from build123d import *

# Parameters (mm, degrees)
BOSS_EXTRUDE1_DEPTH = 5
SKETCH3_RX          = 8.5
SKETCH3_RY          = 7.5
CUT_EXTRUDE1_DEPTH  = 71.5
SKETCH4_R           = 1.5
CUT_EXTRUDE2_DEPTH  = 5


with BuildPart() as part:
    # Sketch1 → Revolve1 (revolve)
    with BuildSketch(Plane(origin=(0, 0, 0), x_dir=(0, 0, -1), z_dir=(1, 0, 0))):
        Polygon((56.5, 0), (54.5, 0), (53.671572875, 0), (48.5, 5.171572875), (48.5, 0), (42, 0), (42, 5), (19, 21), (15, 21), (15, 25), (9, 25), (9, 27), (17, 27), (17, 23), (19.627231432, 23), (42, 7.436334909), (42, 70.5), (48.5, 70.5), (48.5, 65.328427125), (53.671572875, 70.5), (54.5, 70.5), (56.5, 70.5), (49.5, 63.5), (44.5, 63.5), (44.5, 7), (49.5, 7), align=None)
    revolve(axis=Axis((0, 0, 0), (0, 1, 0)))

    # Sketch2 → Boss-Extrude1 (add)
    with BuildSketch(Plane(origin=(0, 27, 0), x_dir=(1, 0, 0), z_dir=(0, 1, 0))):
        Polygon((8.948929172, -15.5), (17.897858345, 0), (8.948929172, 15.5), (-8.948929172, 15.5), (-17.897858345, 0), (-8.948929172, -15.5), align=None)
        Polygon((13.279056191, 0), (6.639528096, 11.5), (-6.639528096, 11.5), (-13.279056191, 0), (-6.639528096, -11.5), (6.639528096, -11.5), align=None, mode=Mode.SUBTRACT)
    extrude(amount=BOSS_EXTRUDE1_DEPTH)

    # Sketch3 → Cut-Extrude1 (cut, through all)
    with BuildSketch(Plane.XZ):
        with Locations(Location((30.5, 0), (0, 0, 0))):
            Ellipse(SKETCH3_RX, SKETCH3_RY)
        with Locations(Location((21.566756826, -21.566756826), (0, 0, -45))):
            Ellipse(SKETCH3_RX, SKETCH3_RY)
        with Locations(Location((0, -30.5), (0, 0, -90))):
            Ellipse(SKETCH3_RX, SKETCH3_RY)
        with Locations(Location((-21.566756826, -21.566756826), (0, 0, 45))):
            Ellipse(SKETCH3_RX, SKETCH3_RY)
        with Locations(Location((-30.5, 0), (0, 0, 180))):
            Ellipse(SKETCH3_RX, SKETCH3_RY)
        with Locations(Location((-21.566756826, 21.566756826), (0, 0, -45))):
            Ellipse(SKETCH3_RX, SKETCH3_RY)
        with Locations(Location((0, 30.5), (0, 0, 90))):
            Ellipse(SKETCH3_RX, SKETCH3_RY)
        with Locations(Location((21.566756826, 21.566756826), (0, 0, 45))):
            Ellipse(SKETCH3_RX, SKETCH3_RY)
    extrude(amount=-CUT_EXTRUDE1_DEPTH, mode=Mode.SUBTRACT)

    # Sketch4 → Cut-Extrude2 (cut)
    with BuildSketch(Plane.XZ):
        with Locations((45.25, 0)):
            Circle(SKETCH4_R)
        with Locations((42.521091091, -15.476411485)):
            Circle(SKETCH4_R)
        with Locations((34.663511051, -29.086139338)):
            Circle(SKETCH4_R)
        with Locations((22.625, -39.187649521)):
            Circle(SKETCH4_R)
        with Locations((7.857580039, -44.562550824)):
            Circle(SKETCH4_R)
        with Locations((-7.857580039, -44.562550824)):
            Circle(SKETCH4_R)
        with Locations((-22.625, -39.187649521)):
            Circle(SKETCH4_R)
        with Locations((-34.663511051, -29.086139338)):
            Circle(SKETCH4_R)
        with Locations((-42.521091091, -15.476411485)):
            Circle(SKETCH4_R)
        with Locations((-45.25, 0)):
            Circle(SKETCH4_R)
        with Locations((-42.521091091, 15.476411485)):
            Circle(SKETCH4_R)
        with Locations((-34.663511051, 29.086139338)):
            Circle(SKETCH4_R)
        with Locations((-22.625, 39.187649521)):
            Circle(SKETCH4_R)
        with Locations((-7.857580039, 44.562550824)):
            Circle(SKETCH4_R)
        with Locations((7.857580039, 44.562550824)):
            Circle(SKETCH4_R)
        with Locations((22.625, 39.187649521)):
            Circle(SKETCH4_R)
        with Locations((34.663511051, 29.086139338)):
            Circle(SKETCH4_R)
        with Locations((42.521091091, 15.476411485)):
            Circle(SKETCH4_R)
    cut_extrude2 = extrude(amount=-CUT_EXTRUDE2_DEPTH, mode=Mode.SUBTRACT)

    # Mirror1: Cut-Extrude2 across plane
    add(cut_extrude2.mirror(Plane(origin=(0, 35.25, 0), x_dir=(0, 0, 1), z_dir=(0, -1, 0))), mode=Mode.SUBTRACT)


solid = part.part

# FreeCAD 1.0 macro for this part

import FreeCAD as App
import Part
import Sketcher

V = App.Vector
Q = App.Units.Quantity


def add_polygon(sketch, points):
    """Adds a closed chain of lines whose ends are joined by coincident constraints."""
    first, n = sketch.GeometryCount, len(points)
    for a, b in zip(points, points[1:] + points[:1]):
        sketch.addGeometry(Part.LineSegment(App.Vector(*a, 0), App.Vector(*b, 0)), False)
    for i in range(n):
        sketch.addConstraint(Sketcher.Constraint("Coincident", first + i, 2, first + (i + 1) % n, 1))

doc = App.newDocument("Part")
body = doc.addObject("PartDesign::Body", "Body")

# Sketch on YZ plane
sketch1 = doc.addObject("Sketcher::SketchObject", "Sketch")
body.addObject(sketch1)
sketch1.AttachmentSupport = (doc.YZ_Plane, [""])
sketch1.MapMode = "FlatFace"
add_polygon(sketch1, [(0, -53.671573), (0, -56.5), (7, -49.5), (7, -44.5), (63.5, -44.5), (63.5, -49.5), (70.5, -56.5), (70.5, -53.671573), (65.328427, -48.5), (70.5, -48.5), (70.5, -42), (7.436335, -42), (23, -19.627231), (23, -17), (27, -17), (27, -9), (25, -9), (25, -15), (21, -15), (21, -19), (5, -42), (0, -42), (0, -48.5), (5.171573, -48.5)])  # lines 0-23
sketch1.addConstraint([
    Sketcher.Constraint("Vertical", 0),
    Sketcher.Constraint("Vertical", 2),
    Sketcher.Constraint("Horizontal", 3),
    Sketcher.Constraint("Vertical", 4),
    Sketcher.Constraint("Vertical", 6),
    Sketcher.Constraint("Horizontal", 8),
    Sketcher.Constraint("Vertical", 9),
    Sketcher.Constraint("Horizontal", 10),
    Sketcher.Constraint("Vertical", 12),
    Sketcher.Constraint("Horizontal", 13),
    Sketcher.Constraint("Vertical", 14),
    Sketcher.Constraint("Horizontal", 15),
    Sketcher.Constraint("Vertical", 16),
    Sketcher.Constraint("Horizontal", 17),
    Sketcher.Constraint("Vertical", 18),
    Sketcher.Constraint("Horizontal", 20),
    Sketcher.Constraint("Vertical", 21),
    Sketcher.Constraint("Horizontal", 22),
    Sketcher.Constraint("PointOnObject", 0, 2, -2),
    Sketcher.Constraint("PointOnObject", 20, 2, -2),
    Sketcher.Constraint("Perpendicular", 1, 5),
    Sketcher.Constraint("Parallel", 5, 7),
    Sketcher.Constraint("Parallel", 11, 19),
    Sketcher.Constraint("Perpendicular", 7, 23),
    Sketcher.Constraint("Horizontal", 1, 2, 4, 2),
    Sketcher.Constraint("Horizontal", 0, 2, 5, 2),
    Sketcher.Constraint("Horizontal", 10, 2, 19, 2),
    Sketcher.Constraint("Horizontal", 8, 2, 21, 2),
    Sketcher.Constraint("Horizontal", 6, 2, 23, 2),
    Sketcher.Constraint("Vertical", 6, 2, 8, 2),
    Sketcher.Constraint("Equal", 13, 17),
    Sketcher.Constraint("Equal", 8, 22),
    Sketcher.Constraint("Equal", 20, 2),
    Sketcher.Constraint("Equal", 17, 18),
    Sketcher.Constraint("DistanceX", 13, 1, 13, 2, Q("4 mm")),
    Sketcher.Constraint("DistanceX", 15, 2, 15, 1, Q("2 mm")),
    Sketcher.Constraint("DistanceX", 20, 2, 20, 1, Q("5 mm")),
    Sketcher.Constraint("DistanceY", 14, 1, 14, 2, Q("8 mm")),
    Sketcher.Constraint("DistanceY", 16, 2, 16, 1, Q("6 mm")),
    Sketcher.Constraint("DistanceX", 3, 1, 3, 2, Q("56.5 mm")),
    Sketcher.Constraint("DistanceY", 9, 1, 9, 2, Q("6.5 mm")),
    Sketcher.Constraint("DistanceX", -1, 1, 1, 2, Q("7 mm")),
    Sketcher.Constraint("DistanceY", 9, 2, -1, 1, Q("42 mm")),
    Sketcher.Constraint("DistanceX", -1, 1, 11, 2, Q("23 mm")),
    Sketcher.Constraint("DistanceY", 12, 2, -1, 1, Q("17 mm")),
    Sketcher.Constraint("DistanceY", 4, 2, 7, 2, Q("1 mm")),
    Sketcher.Constraint("DistanceY", 12, 1, 12, 2, Q("2.627231 mm")),
    Sketcher.Constraint("Distance", 7, Q("7.313708 mm")),
])
revolution = doc.addObject("PartDesign::Revolution", "Revolution")
body.addObject(revolution)
revolution.Profile = sketch1
revolution.ReferenceAxis = (sketch1, ["H_Axis"])
revolution.Angle = 360

# Sketch on XZ plane
sketch2 = doc.addObject("Sketcher::SketchObject", "Sketch001")
body.addObject(sketch2)
sketch2.AttachmentSupport = (doc.XZ_Plane, [""])
sketch2.MapMode = "FlatFace"
sketch2.AttachmentOffset = App.Placement(V(0, 0, -27), App.Rotation())
add_polygon(sketch2, [(8.948929, 15.5), (17.897858, 0), (8.948929, -15.5), (-8.948929, -15.5), (-17.897858, 0), (-8.948929, 15.5)])  # lines 0-5
add_polygon(sketch2, [(6.639528, -11.5), (13.279056, 0), (6.639528, 11.5), (-6.639528, 11.5), (-13.279056, 0), (-6.639528, -11.5)])  # lines 6-11
sketch2.addConstraint([
    Sketcher.Constraint("Horizontal", 2),
    Sketcher.Constraint("Horizontal", 5),
    Sketcher.Constraint("Horizontal", 8),
    Sketcher.Constraint("Horizontal", 11),
    Sketcher.Constraint("Symmetric", 0, 2, 3, 2, -1, 1),
    Sketcher.Constraint("Symmetric", 1, 2, 4, 2, -1, 1),
    Sketcher.Constraint("Symmetric", 6, 2, 9, 2, -1, 1),
    Sketcher.Constraint("Symmetric", 7, 2, 10, 2, -1, 1),
    Sketcher.Constraint("PointOnObject", 0, 2, -1),
    Sketcher.Constraint("PointOnObject", 6, 2, -1),
    Sketcher.Constraint("Parallel", 0, 3),
    Sketcher.Constraint("Parallel", 4, 6),
    Sketcher.Constraint("Parallel", 3, 7),
    Sketcher.Constraint("Parallel", 6, 9),
    Sketcher.Constraint("Vertical", 2, 2, 4, 2),
    Sketcher.Constraint("Angle", 0, Q("-60 deg")),
    Sketcher.Constraint("DistanceY", 2, 2, 4, 2, Q("31 mm")),
    Sketcher.Constraint("DistanceY", 7, 2, 5, 2, Q("4 mm")),
    Sketcher.Constraint("DistanceX", 2, 2, 2, 1, Q("17.897858 mm")),
    Sketcher.Constraint("DistanceX", 7, 2, 5, 2, Q("2.309401 mm")),
])
pad1 = doc.addObject("PartDesign::Pad", "Pad")
body.addObject(pad1)
pad1.Profile = sketch2
pad1.Length = 5
pad1.Reversed = True

# Sketch on XZ plane
sketch3 = doc.addObject("Sketcher::SketchObject", "Sketch002")
body.addObject(sketch3)
sketch3.AttachmentSupport = (doc.XZ_Plane, [""])
sketch3.MapMode = "FlatFace"
sketch3.addGeometry([
    Part.Ellipse(V(39, 0, 0), V(30.5, 7.5, 0), V(30.5, 0, 0)),  # 0
    Part.Ellipse(V(27.577164, -27.577164, 0), V(26.870058, -16.263456, 0), V(21.566757, -21.566757, 0)),  # 1
    Part.Ellipse(V(0, -39, 0), V(7.5, -30.5, 0), V(0, -30.5, 0)),  # 2
    Part.Ellipse(V(-15.556349, -15.556349, 0), V(-26.870058, -16.263456, 0), V(-21.566757, -21.566757, 0)),  # 3
    Part.Ellipse(V(-39, 0, 0), V(-30.5, -7.5, 0), V(-30.5, 0, 0)),  # 4
    Part.Ellipse(V(-15.556349, 15.556349, 0), V(-16.263456, 26.870058, 0), V(-21.566757, 21.566757, 0)),  # 5
    Part.Ellipse(V(0, 39, 0), V(-7.5, 30.5, 0), V(0, 30.5, 0)),  # 6
    Part.Ellipse(V(27.577164, 27.577164, 0), V(16.263456, 26.870058, 0), V(21.566757, 21.566757, 0)),  # 7
], False)
sketch3.addConstraint([
    Sketcher.Constraint("Block", 0),
    Sketcher.Constraint("Block", 1),
    Sketcher.Constraint("Block", 2),
    Sketcher.Constraint("Block", 3),
    Sketcher.Constraint("Block", 4),
    Sketcher.Constraint("Block", 5),
    Sketcher.Constraint("Block", 6),
    Sketcher.Constraint("Block", 7),
])
pocket1 = doc.addObject("PartDesign::Pocket", "Pocket")
body.addObject(pocket1)
pocket1.Profile = sketch3
pocket1.Type = "ThroughAll"

# Sketch on XZ plane
sketch4 = doc.addObject("Sketcher::SketchObject", "Sketch003")
body.addObject(sketch4)
sketch4.AttachmentSupport = (doc.XZ_Plane, [""])
sketch4.MapMode = "FlatFace"
sketch4.addGeometry([
    Part.Circle(V(45.25, 0, 0), V(0, 0, 1), 1.5),  # 0
    Part.Circle(V(42.521091, -15.476411, 0), V(0, 0, 1), 1.5),  # 1
    Part.Circle(V(34.663511, -29.086139, 0), V(0, 0, 1), 1.5),  # 2
    Part.Circle(V(22.625, -39.18765, 0), V(0, 0, 1), 1.5),  # 3
    Part.Circle(V(7.85758, -44.562551, 0), V(0, 0, 1), 1.5),  # 4
    Part.Circle(V(-7.85758, -44.562551, 0), V(0, 0, 1), 1.5),  # 5
    Part.Circle(V(-22.625, -39.18765, 0), V(0, 0, 1), 1.5),  # 6
    Part.Circle(V(-34.663511, -29.086139, 0), V(0, 0, 1), 1.5),  # 7
    Part.Circle(V(-42.521091, -15.476411, 0), V(0, 0, 1), 1.5),  # 8
    Part.Circle(V(-45.25, 0, 0), V(0, 0, 1), 1.5),  # 9
    Part.Circle(V(-42.521091, 15.476411, 0), V(0, 0, 1), 1.5),  # 10
    Part.Circle(V(-34.663511, 29.086139, 0), V(0, 0, 1), 1.5),  # 11
    Part.Circle(V(-22.625, 39.18765, 0), V(0, 0, 1), 1.5),  # 12
    Part.Circle(V(-7.85758, 44.562551, 0), V(0, 0, 1), 1.5),  # 13
    Part.Circle(V(7.85758, 44.562551, 0), V(0, 0, 1), 1.5),  # 14
    Part.Circle(V(22.625, 39.18765, 0), V(0, 0, 1), 1.5),  # 15
    Part.Circle(V(34.663511, 29.086139, 0), V(0, 0, 1), 1.5),  # 16
    Part.Circle(V(42.521091, 15.476411, 0), V(0, 0, 1), 1.5),  # 17
], False)
sketch4.addConstraint([
    Sketcher.Constraint("Equal", 0, 1),
    Sketcher.Constraint("Equal", 1, 2),
    Sketcher.Constraint("Equal", 2, 3),
    Sketcher.Constraint("Equal", 3, 4),
    Sketcher.Constraint("Equal", 4, 5),
    Sketcher.Constraint("Equal", 5, 6),
    Sketcher.Constraint("Equal", 6, 7),
    Sketcher.Constraint("Equal", 7, 8),
    Sketcher.Constraint("Equal", 8, 9),
    Sketcher.Constraint("Equal", 9, 10),
    Sketcher.Constraint("Equal", 10, 11),
    Sketcher.Constraint("Equal", 11, 12),
    Sketcher.Constraint("Equal", 12, 13),
    Sketcher.Constraint("Equal", 13, 14),
    Sketcher.Constraint("Equal", 14, 15),
    Sketcher.Constraint("Equal", 15, 16),
    Sketcher.Constraint("Equal", 16, 17),
    Sketcher.Constraint("Symmetric", 0, 3, 9, 3, -1, 1),
    Sketcher.Constraint("Symmetric", 1, 3, 10, 3, -1, 1),
    Sketcher.Constraint("Symmetric", 2, 3, 11, 3, -1, 1),
    Sketcher.Constraint("Symmetric", 3, 3, 12, 3, -1, 1),
    Sketcher.Constraint("Symmetric", 4, 3, 13, 3, -1, 1),
    Sketcher.Constraint("Symmetric", 5, 3, 14, 3, -1, 1),
    Sketcher.Constraint("Symmetric", 6, 3, 15, 3, -1, 1),
    Sketcher.Constraint("Symmetric", 7, 3, 16, 3, -1, 1),
    Sketcher.Constraint("Symmetric", 8, 3, 17, 3, -1, 1),
    Sketcher.Constraint("Symmetric", 4, 3, 5, 3, -2),
    Sketcher.Constraint("Symmetric", 3, 3, 6, 3, -2),
    Sketcher.Constraint("Symmetric", 2, 3, 7, 3, -2),
    Sketcher.Constraint("Symmetric", 1, 3, 8, 3, -2),
    Sketcher.Constraint("PointOnObject", 0, 3, -1),
    Sketcher.Constraint("Diameter", 0, Q("3 mm")),
    Sketcher.Constraint("DistanceX", -1, 1, 0, 3, Q("45.25 mm")),
    Sketcher.Constraint("DistanceX", 6, 3, 3, 3, Q("45.25 mm")),
    Sketcher.Constraint("DistanceY", 4, 3, 3, 3, Q("5.374901 mm")),
    Sketcher.Constraint("DistanceX", -1, 1, 1, 3, Q("42.521091 mm")),
    Sketcher.Constraint("DistanceY", 1, 3, -1, 1, Q("15.476411 mm")),
    Sketcher.Constraint("DistanceX", -1, 1, 2, 3, Q("34.663511 mm")),
    Sketcher.Constraint("DistanceY", 2, 3, -1, 1, Q("29.086139 mm")),
    Sketcher.Constraint("DistanceY", 3, 3, -1, 1, Q("39.18765 mm")),
    Sketcher.Constraint("DistanceX", -1, 1, 4, 3, Q("7.85758 mm")),
])
pocket2 = doc.addObject("PartDesign::Pocket", "Pocket001")
body.addObject(pocket2)
pocket2.Profile = sketch4
pocket2.Length = 5
doc.recompute()

datumplane = doc.addObject("PartDesign::Plane", "DatumPlane")
body.addObject(datumplane)
datumplane.AttachmentSupport = (doc.XZ_Plane, [""])
datumplane.MapMode = "FlatFace"
datumplane.AttachmentOffset = App.Placement(V(0, 0, -35.25), App.Rotation())
mirrored = doc.addObject("PartDesign::Mirrored", "Mirrored")
body.addObject(mirrored)
mirrored.Originals = [pocket2]
mirrored.MirrorPlane = (datumplane, [""])
body.Tip = mirrored

doc.recompute()
